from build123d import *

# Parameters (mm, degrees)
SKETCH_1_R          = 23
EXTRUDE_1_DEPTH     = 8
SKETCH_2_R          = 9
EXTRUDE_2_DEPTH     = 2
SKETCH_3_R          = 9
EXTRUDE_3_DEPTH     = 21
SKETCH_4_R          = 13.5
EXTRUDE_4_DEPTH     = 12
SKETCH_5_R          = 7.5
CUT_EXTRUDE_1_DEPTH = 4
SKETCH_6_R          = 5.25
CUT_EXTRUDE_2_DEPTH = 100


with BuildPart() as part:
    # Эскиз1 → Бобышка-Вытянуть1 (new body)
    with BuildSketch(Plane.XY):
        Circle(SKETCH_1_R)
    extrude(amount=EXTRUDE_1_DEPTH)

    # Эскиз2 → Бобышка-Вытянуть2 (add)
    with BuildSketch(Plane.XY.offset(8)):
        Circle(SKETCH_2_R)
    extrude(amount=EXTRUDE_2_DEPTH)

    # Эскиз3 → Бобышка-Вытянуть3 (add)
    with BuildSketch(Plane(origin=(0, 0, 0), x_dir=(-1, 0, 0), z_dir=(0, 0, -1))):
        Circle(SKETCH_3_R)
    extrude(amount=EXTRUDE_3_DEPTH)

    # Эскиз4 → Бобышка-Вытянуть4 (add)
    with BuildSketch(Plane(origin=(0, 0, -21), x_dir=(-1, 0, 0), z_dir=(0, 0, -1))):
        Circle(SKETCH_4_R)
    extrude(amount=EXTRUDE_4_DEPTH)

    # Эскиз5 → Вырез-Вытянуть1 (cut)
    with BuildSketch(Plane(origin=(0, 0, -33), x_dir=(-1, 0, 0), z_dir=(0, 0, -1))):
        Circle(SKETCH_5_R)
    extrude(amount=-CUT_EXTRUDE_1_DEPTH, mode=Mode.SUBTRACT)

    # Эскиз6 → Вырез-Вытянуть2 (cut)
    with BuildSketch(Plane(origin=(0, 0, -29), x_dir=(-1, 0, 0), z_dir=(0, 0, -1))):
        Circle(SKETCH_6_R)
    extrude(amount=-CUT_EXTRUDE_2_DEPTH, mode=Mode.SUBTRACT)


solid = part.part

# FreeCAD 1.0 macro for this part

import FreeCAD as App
import Part
import Sketcher
from FreeCAD import Vector
Q = App.Units.Quantity

doc = App.newDocument("Part")
body = doc.addObject("PartDesign::Body", "Body")

# Sketch on XY plane
sketch1 = body.newObject("Sketcher::SketchObject", "Sketch")
sketch1.AttachmentSupport = (doc.getObject("XY_Plane"), [""])
sketch1.MapMode = "FlatFace"
sketch1.addGeometry(Part.Circle(Vector(0, 0, 0), Vector(0, 0, 1), 23), False)
sketch1.addConstraint([
    Sketcher.Constraint("Coincident", 0, 3, -1, 1),
    Sketcher.Constraint("Diameter", 0, Q("46 mm")),
])
pad1 = body.newObject("PartDesign::Pad", "Pad")
pad1.Profile = sketch1
pad1.Length = 8

# Sketch on XY plane
sketch2 = body.newObject("Sketcher::SketchObject", "Sketch001")
sketch2.AttachmentSupport = (doc.getObject("XY_Plane"), [""])
sketch2.MapMode = "FlatFace"
sketch2.AttachmentOffset = App.Placement(Vector(0, 0, 8), App.Rotation())
sketch2.addGeometry(Part.Circle(Vector(0, 0, 0), Vector(0, 0, 1), 9), False)
sketch2.addConstraint([
    Sketcher.Constraint("Coincident", 0, 3, -1, 1),
    Sketcher.Constraint("Diameter", 0, Q("18 mm")),
])
pad2 = body.newObject("PartDesign::Pad", "Pad001")
pad2.Profile = sketch2
pad2.Length = 2

# Sketch on XY plane
sketch3 = body.newObject("Sketcher::SketchObject", "Sketch002")
sketch3.AttachmentSupport = (doc.getObject("XY_Plane"), [""])
sketch3.MapMode = "FlatFace"
sketch3.addGeometry(Part.Circle(Vector(0, 0, 0), Vector(0, 0, 1), 9), False)
sketch3.addConstraint([
    Sketcher.Constraint("Coincident", 0, 3, -1, 1),
    Sketcher.Constraint("Diameter", 0, Q("18 mm")),
])
pad3 = body.newObject("PartDesign::Pad", "Pad002")
pad3.Profile = sketch3
pad3.Length = 21
pad3.Reversed = True

# Sketch on XY plane
sketch4 = body.newObject("Sketcher::SketchObject", "Sketch003")
sketch4.AttachmentSupport = (doc.getObject("XY_Plane"), [""])
sketch4.MapMode = "FlatFace"
sketch4.AttachmentOffset = App.Placement(Vector(0, 0, -21), App.Rotation())
sketch4.addGeometry(Part.Circle(Vector(0, 0, 0), Vector(0, 0, 1), 14), False)
sketch4.addConstraint([
    Sketcher.Constraint("Coincident", 0, 3, -1, 1),
    Sketcher.Constraint("Diameter", 0, Q("27 mm")),
])
pad4 = body.newObject("PartDesign::Pad", "Pad003")
pad4.Profile = sketch4
pad4.Length = 12
pad4.Reversed = True

# Sketch on XY plane
sketch5 = body.newObject("Sketcher::SketchObject", "Sketch004")
sketch5.AttachmentSupport = (doc.getObject("XY_Plane"), [""])
sketch5.MapMode = "FlatFace"
sketch5.AttachmentOffset = App.Placement(Vector(0, 0, -33), App.Rotation())
sketch5.addGeometry(Part.Circle(Vector(0, 0, 0), Vector(0, 0, 1), 8), False)
sketch5.addConstraint([
    Sketcher.Constraint("Coincident", 0, 3, -1, 1),
    Sketcher.Constraint("Diameter", 0, Q("15 mm")),
])
pocket1 = body.newObject("PartDesign::Pocket", "Pocket")
pocket1.Profile = sketch5
pocket1.Length = 4
pocket1.Reversed = True

# Sketch on XY plane
sketch6 = body.newObject("Sketcher::SketchObject", "Sketch005")
sketch6.AttachmentSupport = (doc.getObject("XY_Plane"), [""])
sketch6.MapMode = "FlatFace"
sketch6.AttachmentOffset = App.Placement(Vector(0, 0, -29), App.Rotation())
sketch6.addGeometry(Part.Circle(Vector(0, 0, 0), Vector(0, 0, 1), 5), False)
sketch6.addConstraint([
    Sketcher.Constraint("Coincident", 0, 3, -1, 1),
    Sketcher.Constraint("Diameter", 0, Q("10.5 mm")),
])
pocket2 = body.newObject("PartDesign::Pocket", "Pocket001")
pocket2.Profile = sketch6
pocket2.Length = 100
pocket2.Reversed = True

doc.recompute()
